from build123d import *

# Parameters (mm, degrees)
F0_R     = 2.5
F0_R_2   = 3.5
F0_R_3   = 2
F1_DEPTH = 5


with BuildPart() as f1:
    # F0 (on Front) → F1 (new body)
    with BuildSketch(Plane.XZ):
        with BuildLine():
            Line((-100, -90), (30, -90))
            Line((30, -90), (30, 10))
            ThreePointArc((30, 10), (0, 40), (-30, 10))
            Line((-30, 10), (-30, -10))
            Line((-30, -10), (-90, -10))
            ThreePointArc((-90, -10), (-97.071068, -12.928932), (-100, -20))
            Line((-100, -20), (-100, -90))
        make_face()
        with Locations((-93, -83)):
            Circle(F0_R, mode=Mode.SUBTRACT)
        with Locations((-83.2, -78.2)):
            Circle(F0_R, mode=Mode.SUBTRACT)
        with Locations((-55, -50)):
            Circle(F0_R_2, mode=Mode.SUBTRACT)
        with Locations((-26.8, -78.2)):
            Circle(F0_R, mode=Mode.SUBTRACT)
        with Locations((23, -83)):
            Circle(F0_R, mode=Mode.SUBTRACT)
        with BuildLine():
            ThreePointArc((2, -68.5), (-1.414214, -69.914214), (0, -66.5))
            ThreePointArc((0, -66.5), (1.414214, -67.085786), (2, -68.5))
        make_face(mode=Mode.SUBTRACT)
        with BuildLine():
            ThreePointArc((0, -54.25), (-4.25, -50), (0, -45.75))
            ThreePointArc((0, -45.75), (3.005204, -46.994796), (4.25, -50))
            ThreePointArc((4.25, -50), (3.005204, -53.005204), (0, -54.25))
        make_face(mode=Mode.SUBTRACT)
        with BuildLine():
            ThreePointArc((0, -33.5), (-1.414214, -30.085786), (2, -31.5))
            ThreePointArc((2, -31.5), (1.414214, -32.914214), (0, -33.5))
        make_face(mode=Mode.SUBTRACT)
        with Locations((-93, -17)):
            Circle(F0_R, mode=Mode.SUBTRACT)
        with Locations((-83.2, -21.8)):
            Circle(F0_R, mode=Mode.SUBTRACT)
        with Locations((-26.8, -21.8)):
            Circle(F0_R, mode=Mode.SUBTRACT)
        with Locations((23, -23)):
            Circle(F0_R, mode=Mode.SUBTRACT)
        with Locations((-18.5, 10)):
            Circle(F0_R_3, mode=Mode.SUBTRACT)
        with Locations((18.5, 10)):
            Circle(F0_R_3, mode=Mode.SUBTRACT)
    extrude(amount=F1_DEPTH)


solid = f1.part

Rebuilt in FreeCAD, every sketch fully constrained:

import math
import FreeCAD as App
import Part
import Sketcher

V = App.Vector

doc = App.newDocument("Part")
body = doc.addObject("PartDesign::Body", "Body")

# Sketch on XZ plane
sketch1 = body.newObject("Sketcher::SketchObject", "Sketch")
sketch1.AttachmentSupport = (doc.getObject("XZ_Plane"), [""])
sketch1.MapMode = "FlatFace"
sketch1.addGeometry(Part.LineSegment(V(-100, -90, 0), V(30, -90, 0)), False)
sketch1.addGeometry(Part.LineSegment(V(30, -90, 0), V(30, 10, 0)), False)
sketch1.addGeometry(Part.ArcOfCircle(Part.Circle(V(0, 10, 0), V(0, 0, 1), 30), math.radians(0), math.radians(180)), False)
sketch1.addGeometry(Part.LineSegment(V(-30, 10, 0), V(-30, -10, 0)), False)
sketch1.addGeometry(Part.LineSegment(V(-30, -10, 0), V(-90, -10, 0)), False)
sketch1.addGeometry(Part.ArcOfCircle(Part.Circle(V(-90, -20, 0), V(0, 0, 1), 10), math.radians(90), math.radians(180)), False)
sketch1.addGeometry(Part.LineSegment(V(-100, -20, 0), V(-100, -90, 0)), False)
sketch1.addGeometry(Part.Circle(V(-93, -83, 0), V(0, 0, 1), 2.5), False)
sketch1.addGeometry(Part.Circle(V(-83.2, -78.2, 0), V(0, 0, 1), 2.5), False)
sketch1.addGeometry(Part.Circle(V(-55, -50, 0), V(0, 0, 1), 3.5), False)
sketch1.addGeometry(Part.Circle(V(-26.8, -78.2, 0), V(0, 0, 1), 2.5), False)
sketch1.addGeometry(Part.Circle(V(23, -83, 0), V(0, 0, 1), 2.5), False)
sketch1.addGeometry(Part.ArcOfCircle(Part.Circle(V(0, -68.5, 0), V(0, 0, 1), 2), math.radians(0), math.radians(90)), False)
sketch1.addGeometry(Part.ArcOfCircle(Part.Circle(V(0, -68.5, 0), V(0, 0, 1), 2), math.radians(90), math.radians(360)), False)
sketch1.addGeometry(Part.ArcOfCircle(Part.Circle(V(0, -50, 0), V(0, 0, 1), 4.2), math.radians(-90), math.radians(0)), False)
sketch1.addGeometry(Part.ArcOfCircle(Part.Circle(V(0, -50, 0), V(0, 0, 1), 4.2), math.radians(90), math.radians(270)), False)
sketch1.addGeometry(Part.ArcOfCircle(Part.Circle(V(0, -50, 0), V(0, 0, 1), 4.2), math.radians(0), math.radians(90)), False)
sketch1.addGeometry(Part.Circle(V(-83.2, -21.8, 0), V(0, 0, 1), 2.5), False)
sketch1.addGeometry(Part.Circle(V(-93, -17, 0), V(0, 0, 1), 2.5), False)
sketch1.addGeometry(Part.Circle(V(-26.8, -21.8, 0), V(0, 0, 1), 2.5), False)
sketch1.addGeometry(Part.ArcOfCircle(Part.Circle(V(0, -31.5, 0), V(0, 0, 1), 2), math.radians(-90), math.radians(0)), False)
sketch1.addGeometry(Part.ArcOfCircle(Part.Circle(V(0, -31.5, 0), V(0, 0, 1), 2), math.radians(0), math.radians(270)), False)
sketch1.addGeometry(Part.Circle(V(23, -23, 0), V(0, 0, 1), 2.5), False)
sketch1.addGeometry(Part.Circle(V(-18.5, 10, 0), V(0, 0, 1), 2), False)
sketch1.addGeometry(Part.Circle(V(18.5, 10, 0), V(0, 0, 1), 2), False)
sketch1.addConstraint(Sketcher.Constraint("Coincident", 0, 2, 1, 1))
sketch1.addConstraint(Sketcher.Constraint("Tangent", 1, 2, 2, 1))
sketch1.addConstraint(Sketcher.Constraint("Tangent", 2, 2, 3, 1))
sketch1.addConstraint(Sketcher.Constraint("Coincident", 3, 2, 4, 1))
sketch1.addConstraint(Sketcher.Constraint("Tangent", 4, 2, 5, 1))
sketch1.addConstraint(Sketcher.Constraint("Tangent", 5, 2, 6, 1))
sketch1.addConstraint(Sketcher.Constraint("Coincident", 6, 2, 0, 1))
sketch1.addConstraint(Sketcher.Constraint("Tangent", 12, 1, 13, 2))
sketch1.addConstraint(Sketcher.Constraint("Coincident", 13, 1, 12, 2))
sketch1.addConstraint(Sketcher.Constraint("Tangent", 14, 1, 15, 2))
sketch1.addConstraint(Sketcher.Constraint("Tangent", 15, 1, 16, 2))
sketch1.addConstraint(Sketcher.Constraint("Tangent", 16, 1, 14, 2))
sketch1.addConstraint(Sketcher.Constraint("Tangent", 20, 1, 21, 2))
sketch1.addConstraint(Sketcher.Constraint("Coincident", 21, 1, 20, 2))
sketch1.addConstraint(Sketcher.Constraint("Horizontal", 0))
sketch1.addConstraint(Sketcher.Constraint("Vertical", 1))
sketch1.addConstraint(Sketcher.Constraint("Vertical", 3))
sketch1.addConstraint(Sketcher.Constraint("Horizontal", 4))
sketch1.addConstraint(Sketcher.Constraint("Vertical", 6))
sketch1.addConstraint(Sketcher.Constraint("Equal", 7, 8))
sketch1.addConstraint(Sketcher.Constraint("Equal", 8, 10))
sketch1.addConstraint(Sketcher.Constraint("Equal", 10, 11))
sketch1.addConstraint(Sketcher.Constraint("Equal", 11, 17))
sketch1.addConstraint(Sketcher.Constraint("Equal", 17, 18))
sketch1.addConstraint(Sketcher.Constraint("Equal", 18, 19))
sketch1.addConstraint(Sketcher.Constraint("Equal", 13, 20))
sketch1.addConstraint(Sketcher.Constraint("Equal", 19, 22))
sketch1.addConstraint(Sketcher.Constraint("Equal", 21, 23))
sketch1.addConstraint(Sketcher.Constraint("Equal", 23, 24))
sketch1.addConstraint(Sketcher.Constraint("Symmetric", 1, 2, 3, 2, -1, 1))
sketch1.addConstraint(Sketcher.Constraint("Symmetric", 23, 3, 24, 3, -2))
sketch1.addConstraint(Sketcher.Constraint("PointOnObject", 12, 3, -2))
sketch1.addConstraint(Sketcher.Constraint("PointOnObject", 14, 3, -2))
sketch1.addConstraint(Sketcher.Constraint("PointOnObject", 20, 3, -2))
sketch1.addConstraint(Sketcher.Constraint("PointOnObject", 13, 1, -2))
sketch1.addConstraint(Sketcher.Constraint("PointOnObject", 14, 1, -2))
sketch1.addConstraint(Sketcher.Constraint("PointOnObject", 15, 1, -2))
sketch1.addConstraint(Sketcher.Constraint("PointOnObject", 20, 1, -2))
sketch1.addConstraint(Sketcher.Constraint("Horizontal", 8, 3, 10, 3))
sketch1.addConstraint(Sketcher.Constraint("Horizontal", 7, 3, 11, 3))
sketch1.addConstraint(Sketcher.Constraint("Horizontal", 9, 3, 14, 3))
sketch1.addConstraint(Sketcher.Constraint("Horizontal", 17, 3, 19, 3))
sketch1.addConstraint(Sketcher.Constraint("Horizontal", 2, 3, 23, 3))
sketch1.addConstraint(Sketcher.Constraint("Horizontal", 13, 3, 12, 1))
sketch1.addConstraint(Sketcher.Constraint("Horizontal", 15, 3, 16, 1))
sketch1.addConstraint(Sketcher.Constraint("Horizontal", 20, 3, 21, 1))
sketch1.addConstraint(Sketcher.Constraint("Vertical", 8, 3, 17, 3))
sketch1.addConstraint(Sketcher.Constraint("Vertical", 7, 3, 18, 3))
sketch1.addConstraint(Sketcher.Constraint("Vertical", 10, 3, 19, 3))
sketch1.addConstraint(Sketcher.Constraint("Vertical", 11, 3, 22, 3))
sketch1.addConstraint(Sketcher.Constraint("Diameter", 7, 5.0))
sketch1.addConstraint(Sketcher.Constraint("Diameter", 9, 7.0))
sketch1.addConstraint(Sketcher.Constraint("Diameter", 23, 4.0))
sketch1.addConstraint(Sketcher.Constraint("Radius", 2, 30.0))
sketch1.addConstraint(Sketcher.Constraint("Radius", 5, 9.999999))
sketch1.addConstraint(Sketcher.Constraint("DistanceX", 0, 1, 0, 2, 130.0))
sketch1.addConstraint(Sketcher.Constraint("DistanceY", 1, 1, 1, 2, 100.0))
sketch1.addConstraint(Sketcher.Constraint("DistanceY", 3, 2, 3, 1, 20.0))
sketch1.addConstraint(Sketcher.Constraint("Radius", 14, 4.249999))
sketch1.addConstraint(Sketcher.Constraint("DistanceX", 7, 3, -1, 1, 93.0))
sketch1.addConstraint(Sketcher.Constraint("DistanceY", 7, 3, -1, 1, 83.0))
sketch1.addConstraint(Sketcher.Constraint("DistanceX", 9, 3, -1, 1, 55.0))
sketch1.addConstraint(Sketcher.Constraint("DistanceY", 9, 3, -1, 1, 50.0))
sketch1.addConstraint(Sketcher.Constraint("DistanceX", -1, 1, 11, 3, 23.0))
sketch1.addConstraint(Sketcher.Constraint("DistanceY", 18, 3, -1, 1, 17.0))
sketch1.addConstraint(Sketcher.Constraint("DistanceY", 22, 3, -1, 1, 23.0))
sketch1.addConstraint(Sketcher.Constraint("DistanceX", 23, 3, 24, 3, 37.0))
sketch1.addConstraint(Sketcher.Constraint("DistanceX", 8, 3, -1, 1, 83.2))
sketch1.addConstraint(Sketcher.Constraint("DistanceY", 8, 3, -1, 1, 78.2))
sketch1.addConstraint(Sketcher.Constraint("DistanceX", 10, 3, -1, 1, 26.8))
sketch1.addConstraint(Sketcher.Constraint("DistanceY", 12, 3, -1, 1, 68.499999))
sketch1.addConstraint(Sketcher.Constraint("DistanceY", 17, 3, -1, 1, 21.8))
sketch1.addConstraint(Sketcher.Constraint("DistanceY", 20, 3, -1, 1, 31.500001))
pad1 = body.newObject("PartDesign::Pad", "Pad")
pad1.Profile = sketch1
pad1.Length = 5

doc.recompute()
